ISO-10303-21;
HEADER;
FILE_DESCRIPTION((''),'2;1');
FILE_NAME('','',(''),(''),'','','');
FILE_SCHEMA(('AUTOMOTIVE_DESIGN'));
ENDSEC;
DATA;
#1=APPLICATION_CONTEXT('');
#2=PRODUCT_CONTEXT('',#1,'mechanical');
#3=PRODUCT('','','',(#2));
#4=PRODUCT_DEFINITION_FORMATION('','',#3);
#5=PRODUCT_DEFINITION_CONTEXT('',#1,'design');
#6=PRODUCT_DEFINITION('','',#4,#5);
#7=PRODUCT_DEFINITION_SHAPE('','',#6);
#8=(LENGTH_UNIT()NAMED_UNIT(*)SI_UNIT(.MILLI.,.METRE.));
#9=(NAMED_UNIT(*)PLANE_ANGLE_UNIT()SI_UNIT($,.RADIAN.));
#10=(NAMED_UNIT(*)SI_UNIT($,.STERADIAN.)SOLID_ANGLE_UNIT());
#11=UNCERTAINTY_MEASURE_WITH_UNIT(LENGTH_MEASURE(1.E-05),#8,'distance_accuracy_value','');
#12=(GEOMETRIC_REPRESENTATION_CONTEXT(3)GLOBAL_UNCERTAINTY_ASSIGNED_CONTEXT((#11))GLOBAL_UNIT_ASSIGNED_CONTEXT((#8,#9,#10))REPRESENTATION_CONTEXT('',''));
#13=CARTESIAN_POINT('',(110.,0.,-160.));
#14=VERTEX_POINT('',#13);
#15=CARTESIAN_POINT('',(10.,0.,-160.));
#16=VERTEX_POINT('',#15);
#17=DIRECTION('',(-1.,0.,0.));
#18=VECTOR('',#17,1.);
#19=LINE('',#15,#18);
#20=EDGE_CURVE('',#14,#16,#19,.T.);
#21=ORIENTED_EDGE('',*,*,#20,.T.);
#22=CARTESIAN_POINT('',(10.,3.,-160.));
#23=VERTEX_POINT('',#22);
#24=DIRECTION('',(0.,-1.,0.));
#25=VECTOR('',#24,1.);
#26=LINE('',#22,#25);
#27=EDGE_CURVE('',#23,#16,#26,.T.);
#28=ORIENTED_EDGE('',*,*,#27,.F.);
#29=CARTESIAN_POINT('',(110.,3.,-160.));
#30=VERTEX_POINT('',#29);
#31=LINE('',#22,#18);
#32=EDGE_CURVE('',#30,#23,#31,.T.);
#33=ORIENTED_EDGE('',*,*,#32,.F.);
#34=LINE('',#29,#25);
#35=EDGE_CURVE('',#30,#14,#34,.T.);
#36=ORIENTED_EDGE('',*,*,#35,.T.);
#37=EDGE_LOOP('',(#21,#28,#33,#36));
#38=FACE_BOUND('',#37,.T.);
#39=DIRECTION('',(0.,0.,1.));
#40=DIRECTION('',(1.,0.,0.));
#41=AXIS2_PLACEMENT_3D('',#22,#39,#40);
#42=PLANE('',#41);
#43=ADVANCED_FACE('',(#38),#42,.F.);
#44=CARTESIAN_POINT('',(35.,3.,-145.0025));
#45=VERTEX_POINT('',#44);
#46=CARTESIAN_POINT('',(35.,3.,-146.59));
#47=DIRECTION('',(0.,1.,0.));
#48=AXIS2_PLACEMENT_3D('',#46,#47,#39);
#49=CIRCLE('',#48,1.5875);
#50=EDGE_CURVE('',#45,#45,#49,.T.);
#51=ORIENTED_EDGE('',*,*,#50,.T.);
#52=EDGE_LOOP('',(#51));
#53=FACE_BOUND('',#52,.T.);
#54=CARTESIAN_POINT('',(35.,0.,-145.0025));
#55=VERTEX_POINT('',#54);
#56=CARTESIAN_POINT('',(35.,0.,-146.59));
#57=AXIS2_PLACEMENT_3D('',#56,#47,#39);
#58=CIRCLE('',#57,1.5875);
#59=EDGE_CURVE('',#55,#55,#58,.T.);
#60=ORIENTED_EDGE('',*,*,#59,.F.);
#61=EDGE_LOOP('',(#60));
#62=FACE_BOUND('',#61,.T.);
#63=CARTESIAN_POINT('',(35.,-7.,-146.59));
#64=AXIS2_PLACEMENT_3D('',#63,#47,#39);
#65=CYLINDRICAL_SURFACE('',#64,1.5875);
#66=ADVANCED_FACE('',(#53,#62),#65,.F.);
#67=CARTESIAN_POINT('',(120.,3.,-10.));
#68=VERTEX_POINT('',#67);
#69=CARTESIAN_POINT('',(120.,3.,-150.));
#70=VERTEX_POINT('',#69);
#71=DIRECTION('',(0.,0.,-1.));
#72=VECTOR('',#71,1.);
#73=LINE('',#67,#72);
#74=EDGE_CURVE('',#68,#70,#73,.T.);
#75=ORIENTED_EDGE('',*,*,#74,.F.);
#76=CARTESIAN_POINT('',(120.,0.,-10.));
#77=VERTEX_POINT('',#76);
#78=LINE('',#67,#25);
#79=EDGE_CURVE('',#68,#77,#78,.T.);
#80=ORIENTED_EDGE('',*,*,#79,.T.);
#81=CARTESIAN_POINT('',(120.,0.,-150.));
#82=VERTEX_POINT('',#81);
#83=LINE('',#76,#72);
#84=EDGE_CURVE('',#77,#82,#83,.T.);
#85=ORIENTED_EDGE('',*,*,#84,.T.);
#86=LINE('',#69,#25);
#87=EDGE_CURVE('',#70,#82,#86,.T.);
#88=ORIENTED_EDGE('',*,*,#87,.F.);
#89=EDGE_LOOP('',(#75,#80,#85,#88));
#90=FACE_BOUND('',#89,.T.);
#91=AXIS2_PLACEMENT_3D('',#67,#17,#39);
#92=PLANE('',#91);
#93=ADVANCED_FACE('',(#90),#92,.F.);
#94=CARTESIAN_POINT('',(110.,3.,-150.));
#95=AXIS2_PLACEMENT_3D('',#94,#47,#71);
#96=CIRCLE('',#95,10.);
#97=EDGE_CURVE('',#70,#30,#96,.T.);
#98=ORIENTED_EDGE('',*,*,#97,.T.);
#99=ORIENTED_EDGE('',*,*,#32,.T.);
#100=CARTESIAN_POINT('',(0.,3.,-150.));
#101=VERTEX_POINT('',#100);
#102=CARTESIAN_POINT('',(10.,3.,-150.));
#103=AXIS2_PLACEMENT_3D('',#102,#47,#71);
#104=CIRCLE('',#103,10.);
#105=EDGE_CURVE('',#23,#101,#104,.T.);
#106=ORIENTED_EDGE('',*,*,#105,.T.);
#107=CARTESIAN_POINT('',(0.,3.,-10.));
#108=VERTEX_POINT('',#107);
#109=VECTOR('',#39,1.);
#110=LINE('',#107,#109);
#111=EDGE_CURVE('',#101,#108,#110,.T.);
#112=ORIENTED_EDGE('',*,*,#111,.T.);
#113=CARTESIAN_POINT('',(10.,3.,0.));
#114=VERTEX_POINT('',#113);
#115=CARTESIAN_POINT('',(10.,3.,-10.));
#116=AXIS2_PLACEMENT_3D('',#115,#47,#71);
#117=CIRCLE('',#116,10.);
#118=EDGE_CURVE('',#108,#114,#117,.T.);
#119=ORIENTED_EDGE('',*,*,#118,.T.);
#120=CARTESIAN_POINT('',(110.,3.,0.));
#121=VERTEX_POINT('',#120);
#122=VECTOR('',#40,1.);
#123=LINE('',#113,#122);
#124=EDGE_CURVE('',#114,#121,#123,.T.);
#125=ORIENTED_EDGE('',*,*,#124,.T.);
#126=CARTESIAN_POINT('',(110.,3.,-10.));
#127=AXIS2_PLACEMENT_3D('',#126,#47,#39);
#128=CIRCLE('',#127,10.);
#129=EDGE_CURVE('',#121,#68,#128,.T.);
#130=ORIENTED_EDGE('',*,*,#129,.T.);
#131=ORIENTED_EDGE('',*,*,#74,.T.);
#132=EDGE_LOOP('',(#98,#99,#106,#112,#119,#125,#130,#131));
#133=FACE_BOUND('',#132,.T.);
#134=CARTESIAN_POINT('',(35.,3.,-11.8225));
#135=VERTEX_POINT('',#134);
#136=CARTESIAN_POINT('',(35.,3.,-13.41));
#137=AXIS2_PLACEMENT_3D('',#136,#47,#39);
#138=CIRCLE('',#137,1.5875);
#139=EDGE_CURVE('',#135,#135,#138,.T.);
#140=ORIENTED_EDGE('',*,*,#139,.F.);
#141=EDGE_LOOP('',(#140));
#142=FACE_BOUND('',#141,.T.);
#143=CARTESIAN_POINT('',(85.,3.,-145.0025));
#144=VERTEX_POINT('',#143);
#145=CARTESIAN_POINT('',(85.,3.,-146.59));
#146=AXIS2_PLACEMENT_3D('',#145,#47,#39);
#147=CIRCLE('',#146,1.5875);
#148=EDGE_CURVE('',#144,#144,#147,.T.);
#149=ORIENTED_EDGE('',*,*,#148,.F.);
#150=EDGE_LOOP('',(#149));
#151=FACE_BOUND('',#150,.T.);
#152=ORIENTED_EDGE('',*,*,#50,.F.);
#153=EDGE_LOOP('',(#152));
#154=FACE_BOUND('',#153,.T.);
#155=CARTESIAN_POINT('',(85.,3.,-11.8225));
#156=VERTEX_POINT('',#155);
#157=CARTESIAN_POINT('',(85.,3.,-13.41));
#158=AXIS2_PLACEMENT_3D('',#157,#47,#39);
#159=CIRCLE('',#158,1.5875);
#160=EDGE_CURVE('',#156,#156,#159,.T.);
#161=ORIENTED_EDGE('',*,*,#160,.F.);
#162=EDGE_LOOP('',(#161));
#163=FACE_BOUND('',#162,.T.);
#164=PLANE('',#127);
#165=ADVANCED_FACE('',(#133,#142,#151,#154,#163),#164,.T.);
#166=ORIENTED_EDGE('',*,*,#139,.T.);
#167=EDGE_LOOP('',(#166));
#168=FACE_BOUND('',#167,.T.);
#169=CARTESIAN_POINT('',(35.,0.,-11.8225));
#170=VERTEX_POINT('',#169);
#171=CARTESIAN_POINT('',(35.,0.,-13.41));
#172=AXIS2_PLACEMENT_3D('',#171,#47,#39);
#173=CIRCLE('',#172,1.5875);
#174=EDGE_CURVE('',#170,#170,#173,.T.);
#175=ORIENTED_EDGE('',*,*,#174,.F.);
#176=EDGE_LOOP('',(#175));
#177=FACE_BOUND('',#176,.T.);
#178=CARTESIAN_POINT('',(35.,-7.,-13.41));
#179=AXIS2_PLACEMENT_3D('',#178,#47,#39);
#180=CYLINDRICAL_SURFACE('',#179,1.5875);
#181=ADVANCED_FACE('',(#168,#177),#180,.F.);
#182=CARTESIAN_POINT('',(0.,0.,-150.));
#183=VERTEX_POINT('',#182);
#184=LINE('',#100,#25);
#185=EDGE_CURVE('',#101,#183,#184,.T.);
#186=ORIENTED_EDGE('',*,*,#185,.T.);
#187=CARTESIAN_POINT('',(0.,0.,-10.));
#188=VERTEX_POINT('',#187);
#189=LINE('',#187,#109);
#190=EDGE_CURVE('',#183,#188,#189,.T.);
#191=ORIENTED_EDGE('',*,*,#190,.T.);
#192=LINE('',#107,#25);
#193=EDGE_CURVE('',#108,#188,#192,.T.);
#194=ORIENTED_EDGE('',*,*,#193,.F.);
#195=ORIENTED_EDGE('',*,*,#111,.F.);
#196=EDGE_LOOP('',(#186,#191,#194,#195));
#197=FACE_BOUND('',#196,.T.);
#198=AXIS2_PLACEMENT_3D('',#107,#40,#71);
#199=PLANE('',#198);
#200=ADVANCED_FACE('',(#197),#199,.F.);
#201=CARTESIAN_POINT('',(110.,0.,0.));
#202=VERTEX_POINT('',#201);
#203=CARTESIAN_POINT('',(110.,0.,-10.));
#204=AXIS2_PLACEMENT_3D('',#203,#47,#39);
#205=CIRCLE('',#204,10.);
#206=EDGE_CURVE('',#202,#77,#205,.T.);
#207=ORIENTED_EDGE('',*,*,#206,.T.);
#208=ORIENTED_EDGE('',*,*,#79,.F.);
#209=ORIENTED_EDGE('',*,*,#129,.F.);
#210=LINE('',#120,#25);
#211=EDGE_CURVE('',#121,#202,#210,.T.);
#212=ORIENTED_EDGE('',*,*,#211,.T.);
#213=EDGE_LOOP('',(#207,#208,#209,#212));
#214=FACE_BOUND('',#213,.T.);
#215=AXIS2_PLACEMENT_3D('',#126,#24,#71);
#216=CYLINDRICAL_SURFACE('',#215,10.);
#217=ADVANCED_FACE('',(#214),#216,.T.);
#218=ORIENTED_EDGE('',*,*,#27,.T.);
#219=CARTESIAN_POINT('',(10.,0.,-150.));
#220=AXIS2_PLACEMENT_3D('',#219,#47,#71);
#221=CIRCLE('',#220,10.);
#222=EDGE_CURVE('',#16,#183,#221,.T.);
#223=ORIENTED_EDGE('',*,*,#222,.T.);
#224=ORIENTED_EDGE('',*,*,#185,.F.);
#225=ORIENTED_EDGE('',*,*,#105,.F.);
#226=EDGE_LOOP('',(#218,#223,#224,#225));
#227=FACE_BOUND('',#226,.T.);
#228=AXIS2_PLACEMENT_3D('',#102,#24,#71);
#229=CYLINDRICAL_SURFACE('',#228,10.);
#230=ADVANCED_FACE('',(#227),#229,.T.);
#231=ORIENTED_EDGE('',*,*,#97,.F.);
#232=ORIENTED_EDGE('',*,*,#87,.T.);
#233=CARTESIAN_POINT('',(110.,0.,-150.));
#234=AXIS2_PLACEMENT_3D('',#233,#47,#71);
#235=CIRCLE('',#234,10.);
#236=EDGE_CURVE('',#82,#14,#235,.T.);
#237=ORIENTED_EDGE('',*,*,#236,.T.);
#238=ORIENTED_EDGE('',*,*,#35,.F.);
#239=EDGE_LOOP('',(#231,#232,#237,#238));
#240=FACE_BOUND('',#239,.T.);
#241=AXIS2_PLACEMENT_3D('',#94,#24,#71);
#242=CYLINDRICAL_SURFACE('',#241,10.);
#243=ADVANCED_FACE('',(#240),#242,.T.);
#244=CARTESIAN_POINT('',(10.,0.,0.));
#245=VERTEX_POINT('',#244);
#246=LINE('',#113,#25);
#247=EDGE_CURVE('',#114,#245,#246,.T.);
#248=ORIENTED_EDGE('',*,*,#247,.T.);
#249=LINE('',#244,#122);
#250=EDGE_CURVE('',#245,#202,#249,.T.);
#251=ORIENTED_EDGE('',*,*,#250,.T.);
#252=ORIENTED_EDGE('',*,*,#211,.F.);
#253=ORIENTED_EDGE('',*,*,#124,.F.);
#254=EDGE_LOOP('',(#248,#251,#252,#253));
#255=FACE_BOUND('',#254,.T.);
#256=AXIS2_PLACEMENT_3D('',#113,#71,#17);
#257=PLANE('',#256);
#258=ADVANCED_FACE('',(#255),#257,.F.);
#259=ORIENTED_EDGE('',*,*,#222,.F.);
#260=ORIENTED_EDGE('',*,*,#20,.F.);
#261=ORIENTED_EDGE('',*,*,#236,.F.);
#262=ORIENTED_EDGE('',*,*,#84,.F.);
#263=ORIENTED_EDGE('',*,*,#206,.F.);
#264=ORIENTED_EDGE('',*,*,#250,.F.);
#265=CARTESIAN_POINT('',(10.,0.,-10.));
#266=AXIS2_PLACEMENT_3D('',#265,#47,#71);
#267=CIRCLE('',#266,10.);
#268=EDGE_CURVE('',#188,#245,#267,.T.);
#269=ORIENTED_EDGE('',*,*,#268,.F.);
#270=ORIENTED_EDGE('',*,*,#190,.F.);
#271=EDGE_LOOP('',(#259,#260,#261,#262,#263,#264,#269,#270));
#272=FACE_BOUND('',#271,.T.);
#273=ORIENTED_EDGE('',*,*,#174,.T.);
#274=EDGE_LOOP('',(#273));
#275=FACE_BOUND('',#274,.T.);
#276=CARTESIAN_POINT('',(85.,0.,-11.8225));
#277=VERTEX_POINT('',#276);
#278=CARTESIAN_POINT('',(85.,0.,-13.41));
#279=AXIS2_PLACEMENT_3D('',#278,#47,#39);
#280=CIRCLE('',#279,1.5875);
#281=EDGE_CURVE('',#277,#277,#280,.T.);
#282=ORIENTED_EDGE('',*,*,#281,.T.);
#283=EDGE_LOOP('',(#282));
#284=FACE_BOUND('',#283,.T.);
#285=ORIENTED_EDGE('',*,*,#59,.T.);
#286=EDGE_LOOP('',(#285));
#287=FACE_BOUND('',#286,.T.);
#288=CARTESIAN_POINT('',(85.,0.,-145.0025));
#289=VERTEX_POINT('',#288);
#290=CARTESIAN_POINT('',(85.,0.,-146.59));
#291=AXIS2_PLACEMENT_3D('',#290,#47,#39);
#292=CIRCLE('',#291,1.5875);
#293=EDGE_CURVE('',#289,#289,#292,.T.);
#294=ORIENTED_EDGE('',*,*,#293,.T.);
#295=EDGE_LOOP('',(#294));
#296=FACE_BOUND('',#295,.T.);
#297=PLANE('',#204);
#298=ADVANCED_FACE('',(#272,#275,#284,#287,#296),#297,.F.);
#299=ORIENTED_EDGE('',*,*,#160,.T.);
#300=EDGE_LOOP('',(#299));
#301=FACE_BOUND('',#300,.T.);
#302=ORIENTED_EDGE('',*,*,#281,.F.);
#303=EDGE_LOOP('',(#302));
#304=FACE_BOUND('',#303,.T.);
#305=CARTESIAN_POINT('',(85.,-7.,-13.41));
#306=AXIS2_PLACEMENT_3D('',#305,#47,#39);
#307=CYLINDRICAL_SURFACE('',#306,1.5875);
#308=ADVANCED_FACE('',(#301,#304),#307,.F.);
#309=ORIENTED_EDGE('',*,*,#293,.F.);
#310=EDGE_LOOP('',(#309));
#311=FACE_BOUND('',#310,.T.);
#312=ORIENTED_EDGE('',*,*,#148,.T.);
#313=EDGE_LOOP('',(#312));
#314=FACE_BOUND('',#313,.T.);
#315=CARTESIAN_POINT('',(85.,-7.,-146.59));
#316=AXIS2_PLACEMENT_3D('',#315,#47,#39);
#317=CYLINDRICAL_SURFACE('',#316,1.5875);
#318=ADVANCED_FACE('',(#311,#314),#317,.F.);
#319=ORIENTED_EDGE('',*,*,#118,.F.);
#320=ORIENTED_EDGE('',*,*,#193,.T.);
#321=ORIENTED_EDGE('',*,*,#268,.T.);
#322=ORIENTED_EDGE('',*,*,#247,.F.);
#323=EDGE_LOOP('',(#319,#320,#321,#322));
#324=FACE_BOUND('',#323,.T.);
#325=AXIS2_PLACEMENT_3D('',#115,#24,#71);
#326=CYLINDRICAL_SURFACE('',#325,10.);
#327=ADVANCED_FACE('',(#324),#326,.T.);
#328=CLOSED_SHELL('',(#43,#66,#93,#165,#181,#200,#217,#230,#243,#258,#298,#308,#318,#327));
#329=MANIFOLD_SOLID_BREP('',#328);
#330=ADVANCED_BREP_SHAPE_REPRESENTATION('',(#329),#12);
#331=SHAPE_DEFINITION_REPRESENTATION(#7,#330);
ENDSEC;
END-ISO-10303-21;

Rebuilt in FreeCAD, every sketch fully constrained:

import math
import FreeCAD as App
import Part
import Sketcher
from FreeCAD import Vector
Q = App.Units.Quantity

doc = App.newDocument("Part")
body = doc.addObject("PartDesign::Body", "Body")

# Sketch on XZ plane
sketch1 = doc.addObject("Sketcher::SketchObject", "Sketch")
body.addObject(sketch1)
sketch1.AttachmentSupport = (doc.XZ_Plane, [""])
sketch1.MapMode = "FlatFace"
sketch1.addGeometry(Part.LineSegment(Vector(10, 0, 0), Vector(110, 0, 0)), False)
sketch1.addGeometry(Part.ArcOfCircle(Part.Circle(Vector(110, -10, 0), Vector(0, 0, 1), 10), math.radians(0), math.radians(90)), False)
sketch1.addGeometry(Part.LineSegment(Vector(120, -10, 0), Vector(120, -150, 0)), False)
sketch1.addGeometry(Part.ArcOfCircle(Part.Circle(Vector(110, -150, 0), Vector(0, 0, 1), 10), math.radians(-90), math.radians(0)), False)
sketch1.addGeometry(Part.LineSegment(Vector(110, -160, 0), Vector(10, -160, 0)), False)
sketch1.addGeometry(Part.ArcOfCircle(Part.Circle(Vector(10, -150, 0), Vector(0, 0, 1), 10), math.radians(180), math.radians(270)), False)
sketch1.addGeometry(Part.LineSegment(Vector(0, -150, 0), Vector(0, -10, 0)), False)
sketch1.addGeometry(Part.ArcOfCircle(Part.Circle(Vector(10, -10, 0), Vector(0, 0, 1), 10), math.radians(90), math.radians(180)), False)
sketch1.addConstraint(Sketcher.Constraint("Tangent", 0, 2, 1, 2))
sketch1.addConstraint(Sketcher.Constraint("Tangent", 1, 1, 2, 1))
sketch1.addConstraint(Sketcher.Constraint("Tangent", 2, 2, 3, 2))
sketch1.addConstraint(Sketcher.Constraint("Tangent", 3, 1, 4, 1))
sketch1.addConstraint(Sketcher.Constraint("Tangent", 4, 2, 5, 2))
sketch1.addConstraint(Sketcher.Constraint("Tangent", 5, 1, 6, 1))
sketch1.addConstraint(Sketcher.Constraint("Tangent", 6, 2, 7, 2))
sketch1.addConstraint(Sketcher.Constraint("Tangent", 7, 1, 0, 1))
sketch1.addConstraint(Sketcher.Constraint("Horizontal", 0))
sketch1.addConstraint(Sketcher.Constraint("Vertical", 2))
sketch1.addConstraint(Sketcher.Constraint("Horizontal", 4))
sketch1.addConstraint(Sketcher.Constraint("Vertical", 6))
sketch1.addConstraint(Sketcher.Constraint("Equal", 1, 3))
sketch1.addConstraint(Sketcher.Constraint("Equal", 3, 5))
sketch1.addConstraint(Sketcher.Constraint("Equal", 5, 7))
sketch1.addConstraint(Sketcher.Constraint("PointOnObject", 0, 2, -1))
sketch1.addConstraint(Sketcher.Constraint("PointOnObject", 5, 1, -2))
sketch1.addConstraint(Sketcher.Constraint("Radius", 1, Q("10 mm")))
sketch1.addConstraint(Sketcher.Constraint("DistanceX", 0, 1, 0, 2, Q("100 mm")))
sketch1.addConstraint(Sketcher.Constraint("DistanceY", 2, 2, 2, 1, Q("140 mm")))
pad1 = doc.addObject("PartDesign::Pad", "Pad")
body.addObject(pad1)
pad1.Profile = sketch1
pad1.Length = 3
pad1.Reversed = True

# Sketch on XZ plane
sketch2 = doc.addObject("Sketcher::SketchObject", "Sketch001")
body.addObject(sketch2)
sketch2.AttachmentSupport = (doc.XZ_Plane, [""])
sketch2.MapMode = "FlatFace"
sketch2.AttachmentOffset = App.Placement(Vector(0, 0, -3), App.Rotation())
sketch2.addGeometry(Part.Circle(Vector(35, -146.59, 0), Vector(0, 0, 1), 1.5875), False)
sketch2.addGeometry(Part.Circle(Vector(85, -146.59, 0), Vector(0, 0, 1), 1.5875), False)
sketch2.addGeometry(Part.Circle(Vector(35, -13.41, 0), Vector(0, 0, 1), 1.5875), False)
sketch2.addGeometry(Part.Circle(Vector(85, -13.41, 0), Vector(0, 0, 1), 1.5875), False)
sketch2.addConstraint(Sketcher.Constraint("Equal", 0, 1))
sketch2.addConstraint(Sketcher.Constraint("Equal", 1, 2))
sketch2.addConstraint(Sketcher.Constraint("Equal", 2, 3))
sketch2.addConstraint(Sketcher.Constraint("Horizontal", 0, 3, 1, 3))
sketch2.addConstraint(Sketcher.Constraint("Horizontal", 2, 3, 3, 3))
sketch2.addConstraint(Sketcher.Constraint("Vertical", 0, 3, 2, 3))
sketch2.addConstraint(Sketcher.Constraint("Vertical", 1, 3, 3, 3))
sketch2.addConstraint(Sketcher.Constraint("Diameter", 0, Q("3.175 mm")))
sketch2.addConstraint(Sketcher.Constraint("DistanceX", -1, 1, 0, 3, Q("35 mm")))
sketch2.addConstraint(Sketcher.Constraint("DistanceX", -1, 1, 1, 3, Q("85 mm")))
sketch2.addConstraint(Sketcher.Constraint("DistanceY", 0, 3, -1, 1, Q("146.59 mm")))
sketch2.addConstraint(Sketcher.Constraint("DistanceY", 2, 3, -1, 1, Q("13.41 mm")))
pocket1 = doc.addObject("PartDesign::Pocket", "Pocket")
body.addObject(pocket1)
pocket1.Profile = sketch2
pocket1.Length = 10
pocket1.Reversed = True

doc.recompute()
